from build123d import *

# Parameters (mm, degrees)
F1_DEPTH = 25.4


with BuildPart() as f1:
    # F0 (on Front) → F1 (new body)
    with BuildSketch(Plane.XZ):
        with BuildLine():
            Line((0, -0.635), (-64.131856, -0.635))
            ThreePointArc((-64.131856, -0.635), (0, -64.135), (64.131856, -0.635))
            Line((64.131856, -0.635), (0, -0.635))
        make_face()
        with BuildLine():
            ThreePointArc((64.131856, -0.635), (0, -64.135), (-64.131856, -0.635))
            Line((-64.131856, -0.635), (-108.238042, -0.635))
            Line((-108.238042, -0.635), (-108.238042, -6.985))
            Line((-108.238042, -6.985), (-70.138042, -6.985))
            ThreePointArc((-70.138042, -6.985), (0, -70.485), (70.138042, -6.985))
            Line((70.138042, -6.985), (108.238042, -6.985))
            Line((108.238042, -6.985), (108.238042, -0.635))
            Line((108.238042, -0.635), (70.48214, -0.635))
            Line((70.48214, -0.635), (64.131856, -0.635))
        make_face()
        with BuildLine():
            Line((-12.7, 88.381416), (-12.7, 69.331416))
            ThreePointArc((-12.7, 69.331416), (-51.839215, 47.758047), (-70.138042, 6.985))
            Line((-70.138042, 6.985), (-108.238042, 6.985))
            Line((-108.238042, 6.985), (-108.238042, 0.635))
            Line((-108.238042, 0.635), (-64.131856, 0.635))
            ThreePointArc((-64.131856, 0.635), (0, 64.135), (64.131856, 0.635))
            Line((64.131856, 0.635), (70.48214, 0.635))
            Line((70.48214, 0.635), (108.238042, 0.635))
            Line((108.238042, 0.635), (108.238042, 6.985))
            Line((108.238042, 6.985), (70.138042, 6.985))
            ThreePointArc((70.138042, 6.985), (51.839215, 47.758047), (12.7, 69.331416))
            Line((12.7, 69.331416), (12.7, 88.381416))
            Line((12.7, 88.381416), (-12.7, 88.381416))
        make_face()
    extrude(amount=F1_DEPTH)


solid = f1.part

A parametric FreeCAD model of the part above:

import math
import FreeCAD as App
import Part
import Sketcher
Q = App.Units.Quantity

doc = App.newDocument("Part")
body = doc.addObject("PartDesign::Body", "Body")
body.AllowCompound = True

# Sketch on XZ plane
sketch1 = body.newObject("Sketcher::SketchObject", "Sketch")
sketch1.AttachmentSupport = (doc.getObject("XZ_Plane"), [""])
sketch1.MapMode = "FlatFace"
sketch1.addGeometry([
    Part.LineSegment(App.Vector(-108, -1, 0), App.Vector(-108, -7, 0)),  # 0
    Part.LineSegment(App.Vector(-108, -7, 0), App.Vector(-70, -7, 0)),  # 1
    Part.ArcOfCircle(Part.Circle(App.Vector(0, 0, 0), App.Vector(0, 0, 1), 70), math.radians(-174), math.radians(-6)),  # 2
    Part.LineSegment(App.Vector(70, -7, 0), App.Vector(108, -7, 0)),  # 3
    Part.LineSegment(App.Vector(108, -7, 0), App.Vector(108, -1, 0)),  # 4
    Part.LineSegment(App.Vector(108, -1, 0), App.Vector(-108, -1, 0)),  # 5
    Part.LineSegment(App.Vector(-13, 88, 0), App.Vector(-13, 69, 0)),  # 6
    Part.ArcOfCircle(Part.Circle(App.Vector(0, 0, 0), App.Vector(0, 0, 1), 70), math.radians(100), math.radians(174)),  # 7
    Part.LineSegment(App.Vector(-70, 7, 0), App.Vector(-108, 7, 0)),  # 8
    Part.LineSegment(App.Vector(-108, 7, 0), App.Vector(-108, 1, 0)),  # 9
    Part.LineSegment(App.Vector(-108, 1, 0), App.Vector(-64, 1, 0)),  # 10
    Part.ArcOfCircle(Part.Circle(App.Vector(0, 0, 0), App.Vector(0, 0, 1), 64), math.radians(1), math.radians(179)),  # 11
    Part.LineSegment(App.Vector(64, 1, 0), App.Vector(108, 1, 0)),  # 12
    Part.LineSegment(App.Vector(108, 1, 0), App.Vector(108, 7, 0)),  # 13
    Part.LineSegment(App.Vector(108, 7, 0), App.Vector(70, 7, 0)),  # 14
    Part.ArcOfCircle(Part.Circle(App.Vector(0, 0, 0), App.Vector(0, 0, 1), 70), math.radians(6), math.radians(80)),  # 15
    Part.LineSegment(App.Vector(13, 69, 0), App.Vector(13, 88, 0)),  # 16
    Part.LineSegment(App.Vector(13, 88, 0), App.Vector(-13, 88, 0)),  # 17
], False)
sketch1.addConstraint([
    Sketcher.Constraint("Coincident", 0, 2, 1, 1),
    Sketcher.Constraint("Coincident", 1, 2, 2, 1),
    Sketcher.Constraint("Coincident", 2, 2, 3, 1),
    Sketcher.Constraint("Coincident", 3, 2, 4, 1),
    Sketcher.Constraint("Coincident", 4, 2, 5, 1),
    Sketcher.Constraint("Coincident", 5, 2, 0, 1),
    Sketcher.Constraint("Coincident", 6, 2, 7, 1),
    Sketcher.Constraint("Coincident", 7, 2, 8, 1),
    Sketcher.Constraint("Coincident", 8, 2, 9, 1),
    Sketcher.Constraint("Coincident", 9, 2, 10, 1),
    Sketcher.Constraint("Coincident", 10, 2, 11, 2),
    Sketcher.Constraint("Coincident", 11, 1, 12, 1),
    Sketcher.Constraint("Coincident", 12, 2, 13, 1),
    Sketcher.Constraint("Coincident", 13, 2, 14, 1),
    Sketcher.Constraint("Coincident", 14, 2, 15, 1),
    Sketcher.Constraint("Coincident", 15, 2, 16, 1),
    Sketcher.Constraint("Coincident", 16, 2, 17, 1),
    Sketcher.Constraint("Coincident", 17, 2, 6, 1),
    Sketcher.Constraint("Vertical", 0),
    Sketcher.Constraint("Horizontal", 1),
    Sketcher.Constraint("Horizontal", 3),
    Sketcher.Constraint("Vertical", 4),
    Sketcher.Constraint("Horizontal", 5),
    Sketcher.Constraint("Vertical", 6),
    Sketcher.Constraint("Horizontal", 8),
    Sketcher.Constraint("Vertical", 9),
    Sketcher.Constraint("Horizontal", 10),
    Sketcher.Constraint("Horizontal", 12),
    Sketcher.Constraint("Vertical", 13),
    Sketcher.Constraint("Horizontal", 14),
    Sketcher.Constraint("Vertical", 16),
    Sketcher.Constraint("Horizontal", 17),
    Sketcher.Constraint("Coincident", 2, 3, -1, 1),
    Sketcher.Constraint("Coincident", 7, 3, -1, 1),
    Sketcher.Constraint("Coincident", 11, 3, -1, 1),
    Sketcher.Constraint("Coincident", 15, 3, -1, 1),
    Sketcher.Constraint("Equal", 2, 7),
    Sketcher.Constraint("Equal", 7, 15),
    Sketcher.Constraint("Symmetric", 3, 2, 8, 2, -1, 1),
    Sketcher.Constraint("Symmetric", 5, 2, 12, 2, -1, 1),
    Sketcher.Constraint("Symmetric", 0, 2, 3, 2, -2),
    Sketcher.Constraint("Horizontal", 10, 2, 11, 1),
    Sketcher.Constraint("Horizontal", 8, 2, 13, 2),
    Sketcher.Constraint("Horizontal", 6, 2, 15, 2),
    Sketcher.Constraint("DistanceX", 17, 2, 17, 1, Q("1 in")),
    Sketcher.Constraint("DistanceX", 1, 1, 1, 2, Q("1.5 in")),
    Sketcher.Constraint("Radius", 2, Q("2.775 in")),
    Sketcher.Constraint("Radius", 11, Q("2.525 in")),
    Sketcher.Constraint("DistanceY", 0, 2, 0, 1, Q("0.25 in")),
    Sketcher.Constraint("DistanceY", 6, 2, 6, 1, Q("0.75 in")),
    Sketcher.Constraint("DistanceY", 5, 2, 7, 2, Q("0.3 in")),
])
pad1 = body.newObject("PartDesign::Pad", "Pad")
pad1.Profile = sketch1
pad1.Length = Q("1 in")

doc.recompute()
